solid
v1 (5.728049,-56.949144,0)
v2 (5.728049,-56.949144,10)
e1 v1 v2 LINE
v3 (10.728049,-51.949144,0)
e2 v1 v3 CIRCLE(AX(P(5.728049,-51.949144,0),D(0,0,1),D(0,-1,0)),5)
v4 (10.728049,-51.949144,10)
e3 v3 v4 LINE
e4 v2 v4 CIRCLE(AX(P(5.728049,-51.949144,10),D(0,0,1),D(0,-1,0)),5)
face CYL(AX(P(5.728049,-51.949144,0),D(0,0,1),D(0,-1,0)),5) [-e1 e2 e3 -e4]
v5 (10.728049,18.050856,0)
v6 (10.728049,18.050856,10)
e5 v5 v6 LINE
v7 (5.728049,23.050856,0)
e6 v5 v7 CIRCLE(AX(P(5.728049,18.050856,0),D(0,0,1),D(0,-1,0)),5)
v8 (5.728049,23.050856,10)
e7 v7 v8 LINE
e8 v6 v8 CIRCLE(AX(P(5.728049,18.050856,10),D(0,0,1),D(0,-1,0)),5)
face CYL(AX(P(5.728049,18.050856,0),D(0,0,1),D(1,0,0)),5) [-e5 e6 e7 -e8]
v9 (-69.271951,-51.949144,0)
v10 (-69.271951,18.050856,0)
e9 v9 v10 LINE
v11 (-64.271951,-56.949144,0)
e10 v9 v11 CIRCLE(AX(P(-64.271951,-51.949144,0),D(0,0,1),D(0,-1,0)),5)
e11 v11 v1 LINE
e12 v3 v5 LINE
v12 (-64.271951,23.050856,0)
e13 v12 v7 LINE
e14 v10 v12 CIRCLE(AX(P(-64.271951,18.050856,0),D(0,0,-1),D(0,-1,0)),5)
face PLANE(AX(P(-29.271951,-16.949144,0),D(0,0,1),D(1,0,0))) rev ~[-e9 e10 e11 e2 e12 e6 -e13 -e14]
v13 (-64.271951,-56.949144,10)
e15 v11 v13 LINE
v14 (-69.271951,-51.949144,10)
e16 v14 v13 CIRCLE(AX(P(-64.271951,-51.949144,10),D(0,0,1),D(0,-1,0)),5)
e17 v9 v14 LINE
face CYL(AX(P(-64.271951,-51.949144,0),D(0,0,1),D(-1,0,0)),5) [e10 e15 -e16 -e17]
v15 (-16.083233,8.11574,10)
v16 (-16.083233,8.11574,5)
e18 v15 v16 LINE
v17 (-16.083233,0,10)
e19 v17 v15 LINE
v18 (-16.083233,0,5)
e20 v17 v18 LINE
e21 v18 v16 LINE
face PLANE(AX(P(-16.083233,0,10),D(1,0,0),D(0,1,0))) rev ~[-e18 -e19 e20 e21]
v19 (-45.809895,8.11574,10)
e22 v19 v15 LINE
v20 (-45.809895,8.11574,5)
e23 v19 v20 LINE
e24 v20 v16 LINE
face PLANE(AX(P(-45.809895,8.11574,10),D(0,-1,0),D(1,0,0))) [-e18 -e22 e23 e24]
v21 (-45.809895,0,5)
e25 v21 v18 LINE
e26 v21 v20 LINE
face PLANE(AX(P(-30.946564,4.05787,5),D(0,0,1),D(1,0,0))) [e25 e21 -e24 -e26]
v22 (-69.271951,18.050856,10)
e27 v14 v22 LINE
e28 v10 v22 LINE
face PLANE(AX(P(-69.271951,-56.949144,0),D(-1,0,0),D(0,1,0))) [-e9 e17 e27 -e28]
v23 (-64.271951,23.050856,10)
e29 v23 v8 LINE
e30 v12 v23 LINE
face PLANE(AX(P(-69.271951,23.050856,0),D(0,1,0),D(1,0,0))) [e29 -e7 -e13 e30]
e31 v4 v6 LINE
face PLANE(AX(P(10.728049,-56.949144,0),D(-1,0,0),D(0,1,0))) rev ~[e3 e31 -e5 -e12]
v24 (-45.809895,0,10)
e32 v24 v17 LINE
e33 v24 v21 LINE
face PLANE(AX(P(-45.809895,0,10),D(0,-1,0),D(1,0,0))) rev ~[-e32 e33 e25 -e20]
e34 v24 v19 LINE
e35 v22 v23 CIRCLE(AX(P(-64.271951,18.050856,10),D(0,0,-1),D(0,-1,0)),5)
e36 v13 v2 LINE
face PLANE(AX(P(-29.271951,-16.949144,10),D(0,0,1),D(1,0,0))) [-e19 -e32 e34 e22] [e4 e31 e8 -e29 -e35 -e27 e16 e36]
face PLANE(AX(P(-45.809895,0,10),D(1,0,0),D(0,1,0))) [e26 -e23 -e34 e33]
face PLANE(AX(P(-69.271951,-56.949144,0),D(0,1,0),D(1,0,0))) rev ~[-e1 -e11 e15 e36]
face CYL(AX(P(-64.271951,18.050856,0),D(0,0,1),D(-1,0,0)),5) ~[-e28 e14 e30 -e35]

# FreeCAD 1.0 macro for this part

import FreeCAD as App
import Part
import Sketcher

V = App.Vector


def edges_at(feature, points):
    """Names of the edges that pass closest to the given points."""
    edges = feature.Shape.Edges
    near = lambda p: min(range(len(edges)), key=lambda i: edges[i].distToShape(Part.Vertex(*p))[0])
    return sorted({f"Edge{near(p) + 1}" for p in points})


def add_polygon(sketch, points):
    """Adds a closed chain of lines whose ends are joined by coincident constraints."""
    first, n = sketch.GeometryCount, len(points)
    for a, b in zip(points, points[1:] + points[:1]):
        sketch.addGeometry(Part.LineSegment(App.Vector(*a, 0), App.Vector(*b, 0)), False)
    for i in range(n):
        sketch.addConstraint(Sketcher.Constraint("Coincident", first + i, 2, first + (i + 1) % n, 1))

doc = App.newDocument("Part")
body = doc.addObject("PartDesign::Body", "Body")

# Sketch on XY plane
sketch1 = body.newObject("Sketcher::SketchObject", "Sketch")
sketch1.AttachmentSupport = (doc.getObject("XY_Plane"), [""])
sketch1.MapMode = "FlatFace"
add_polygon(sketch1, [(-69, 23), (-69, -57), (11, -57), (11, 23)])  # lines 0-3
sketch1.addConstraint([
    Sketcher.Constraint("Vertical", 0),
    Sketcher.Constraint("Horizontal", 1),
    Sketcher.Constraint("Vertical", 2),
    Sketcher.Constraint("Horizontal", 3),
    Sketcher.Constraint("Equal", 3, 0),
    Sketcher.Constraint("DistanceX", 1, 1, 1, 2, 80.0),
    Sketcher.Constraint("DistanceX", 0, 2, -1, 1, 69.271951),
    Sketcher.Constraint("DistanceY", 0, 2, -1, 1, 56.949144),
])
pad1 = body.newObject("PartDesign::Pad", "Pad")
pad1.Profile = sketch1
pad1.Length = 10
doc.recompute()

fillet = body.newObject("PartDesign::Fillet", "Fillet")
fillet.Base = (pad1, edges_at(pad1, [
    (-69.272, 23.051, 5),
    (-69.272, -56.949, 5),
    (10.728, -56.949, 5),
    (10.728, 23.051, 5),
]))
fillet.Radius = 5

# Sketch on XY plane
sketch2 = body.newObject("Sketcher::SketchObject", "Sketch001")
sketch2.AttachmentSupport = (doc.getObject("XY_Plane"), [""])
sketch2.MapMode = "FlatFace"
sketch2.AttachmentOffset = App.Placement(V(0, 0, 10), App.Rotation())
add_polygon(sketch2, [(-46, 8), (-46, 0), (-16, 0), (-16, 8)])  # lines 0-3
sketch2.addConstraint([
    Sketcher.Constraint("Vertical", 0),
    Sketcher.Constraint("Horizontal", 1),
    Sketcher.Constraint("Vertical", 2),
    Sketcher.Constraint("Horizontal", 3),
    Sketcher.Constraint("PointOnObject", 0, 2, -1),
    Sketcher.Constraint("DistanceX", 1, 1, 1, 2, 29.726662),
    Sketcher.Constraint("DistanceY", 0, 2, 0, 1, 8.11574),
    Sketcher.Constraint("DistanceX", 0, 2, -1, 1, 45.809895),
])
pocket1 = body.newObject("PartDesign::Pocket", "Pocket")
pocket1.Profile = sketch2
pocket1.Length = 5

doc.recompute()
